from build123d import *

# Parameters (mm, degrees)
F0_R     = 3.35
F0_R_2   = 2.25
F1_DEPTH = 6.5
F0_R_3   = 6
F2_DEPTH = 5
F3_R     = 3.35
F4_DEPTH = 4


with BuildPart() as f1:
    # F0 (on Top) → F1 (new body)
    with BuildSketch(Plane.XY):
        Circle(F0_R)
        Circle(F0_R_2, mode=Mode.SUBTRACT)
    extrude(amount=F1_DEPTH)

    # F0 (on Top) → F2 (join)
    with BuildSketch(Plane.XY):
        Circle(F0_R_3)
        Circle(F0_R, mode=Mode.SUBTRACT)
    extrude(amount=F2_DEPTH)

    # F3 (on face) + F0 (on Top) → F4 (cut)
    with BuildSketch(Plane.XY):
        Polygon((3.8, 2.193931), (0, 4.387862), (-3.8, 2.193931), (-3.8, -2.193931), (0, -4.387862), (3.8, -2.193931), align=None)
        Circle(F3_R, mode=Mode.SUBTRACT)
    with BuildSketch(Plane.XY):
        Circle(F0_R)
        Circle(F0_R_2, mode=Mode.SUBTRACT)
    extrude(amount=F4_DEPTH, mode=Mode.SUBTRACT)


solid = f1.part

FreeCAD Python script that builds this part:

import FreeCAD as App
import Part
import Sketcher

V = App.Vector
Q = App.Units.Quantity


def add_polygon(sketch, points):
    """Adds a closed chain of lines whose ends are joined by coincident constraints."""
    first, n = sketch.GeometryCount, len(points)
    for a, b in zip(points, points[1:] + points[:1]):
        sketch.addGeometry(Part.LineSegment(App.Vector(*a, 0), App.Vector(*b, 0)), False)
    for i in range(n):
        sketch.addConstraint(Sketcher.Constraint("Coincident", first + i, 2, first + (i + 1) % n, 1))

doc = App.newDocument("Part")
body = doc.addObject("PartDesign::Body", "Body")

# Sketch on XY plane
sketch1 = doc.addObject("Sketcher::SketchObject", "Sketch")
body.addObject(sketch1)
sketch1.AttachmentSupport = (doc.XY_Plane, [""])
sketch1.MapMode = "FlatFace"
sketch1.addGeometry(Part.Circle(V(0, 0, 0), V(0, 0, 1), 3.4), False)
sketch1.addGeometry(Part.Circle(V(0, 0, 0), V(0, 0, 1), 2.2), False)
sketch1.addConstraint(Sketcher.Constraint("Coincident", 0, 3, -1, 1))
sketch1.addConstraint(Sketcher.Constraint("Coincident", 1, 3, -1, 1))
sketch1.addConstraint(Sketcher.Constraint("Diameter", 0, 6.7))
sketch1.addConstraint(Sketcher.Constraint("Diameter", 1, 4.5))
pad1 = doc.addObject("PartDesign::Pad", "Pad")
body.addObject(pad1)
pad1.Profile = sketch1
pad1.Length = 6.5

# Sketch on XY plane
sketch2 = doc.addObject("Sketcher::SketchObject", "Sketch001")
body.addObject(sketch2)
sketch2.AttachmentSupport = (doc.XY_Plane, [""])
sketch2.MapMode = "FlatFace"
sketch2.addGeometry(Part.Circle(V(0, 0, 0), V(0, 0, 1), 6), False)
sketch2.addGeometry(Part.Circle(V(0, 0, 0), V(0, 0, 1), 3.4), False)
sketch2.addConstraint(Sketcher.Constraint("Coincident", 0, 3, -1, 1))
sketch2.addConstraint(Sketcher.Constraint("Coincident", 1, 3, -1, 1))
sketch2.addConstraint(Sketcher.Constraint("Diameter", 0, 12.0))
sketch2.addConstraint(Sketcher.Constraint("Diameter", 1, 6.7))
pad2 = doc.addObject("PartDesign::Pad", "Pad001")
body.addObject(pad2)
pad2.Profile = sketch2
pad2.Length = 5

# Sketch on XY plane
sketch3 = doc.addObject("Sketcher::SketchObject", "Sketch002")
body.addObject(sketch3)
sketch3.AttachmentSupport = (doc.XY_Plane, [""])
sketch3.MapMode = "FlatFace"
add_polygon(sketch3, [(3.8, 2.2), (0, 4.4), (-3.8, 2.2), (-3.8, -2.2), (0, -4.4), (3.8, -2.2)])  # lines 0-5
sketch3.addGeometry(Part.Circle(V(0, 0, 0), V(0, 0, 1), 2.2), False)  # 6
sketch3.addConstraint(Sketcher.Constraint("Vertical", 2))
sketch3.addConstraint(Sketcher.Constraint("Vertical", 5))
sketch3.addConstraint(Sketcher.Constraint("Coincident", 6, 3, -1, 1))
sketch3.addConstraint(Sketcher.Constraint("Symmetric", 0, 2, 3, 2, -1, 1))
sketch3.addConstraint(Sketcher.Constraint("Symmetric", 1, 2, 4, 2, -1, 1))
sketch3.addConstraint(Sketcher.Constraint("PointOnObject", 0, 2, -2))
sketch3.addConstraint(Sketcher.Constraint("Parallel", 0, 3))
sketch3.addConstraint(Sketcher.Constraint("Horizontal", 2, 2, 4, 2))
sketch3.addConstraint(Sketcher.Constraint("Diameter", 6, 4.5))
sketch3.addConstraint(Sketcher.Constraint("Angle", 0, Q("150 deg")))
sketch3.addConstraint(Sketcher.Constraint("DistanceX", 1, 2, -1, 1, 3.8))
sketch3.addConstraint(Sketcher.Constraint("DistanceY", 2, 2, 2, 1, 4.387862))
pocket1 = doc.addObject("PartDesign::Pocket", "Pocket")
body.addObject(pocket1)
pocket1.Profile = sketch3
pocket1.Length = 4
pocket1.Reversed = True

doc.recompute()
